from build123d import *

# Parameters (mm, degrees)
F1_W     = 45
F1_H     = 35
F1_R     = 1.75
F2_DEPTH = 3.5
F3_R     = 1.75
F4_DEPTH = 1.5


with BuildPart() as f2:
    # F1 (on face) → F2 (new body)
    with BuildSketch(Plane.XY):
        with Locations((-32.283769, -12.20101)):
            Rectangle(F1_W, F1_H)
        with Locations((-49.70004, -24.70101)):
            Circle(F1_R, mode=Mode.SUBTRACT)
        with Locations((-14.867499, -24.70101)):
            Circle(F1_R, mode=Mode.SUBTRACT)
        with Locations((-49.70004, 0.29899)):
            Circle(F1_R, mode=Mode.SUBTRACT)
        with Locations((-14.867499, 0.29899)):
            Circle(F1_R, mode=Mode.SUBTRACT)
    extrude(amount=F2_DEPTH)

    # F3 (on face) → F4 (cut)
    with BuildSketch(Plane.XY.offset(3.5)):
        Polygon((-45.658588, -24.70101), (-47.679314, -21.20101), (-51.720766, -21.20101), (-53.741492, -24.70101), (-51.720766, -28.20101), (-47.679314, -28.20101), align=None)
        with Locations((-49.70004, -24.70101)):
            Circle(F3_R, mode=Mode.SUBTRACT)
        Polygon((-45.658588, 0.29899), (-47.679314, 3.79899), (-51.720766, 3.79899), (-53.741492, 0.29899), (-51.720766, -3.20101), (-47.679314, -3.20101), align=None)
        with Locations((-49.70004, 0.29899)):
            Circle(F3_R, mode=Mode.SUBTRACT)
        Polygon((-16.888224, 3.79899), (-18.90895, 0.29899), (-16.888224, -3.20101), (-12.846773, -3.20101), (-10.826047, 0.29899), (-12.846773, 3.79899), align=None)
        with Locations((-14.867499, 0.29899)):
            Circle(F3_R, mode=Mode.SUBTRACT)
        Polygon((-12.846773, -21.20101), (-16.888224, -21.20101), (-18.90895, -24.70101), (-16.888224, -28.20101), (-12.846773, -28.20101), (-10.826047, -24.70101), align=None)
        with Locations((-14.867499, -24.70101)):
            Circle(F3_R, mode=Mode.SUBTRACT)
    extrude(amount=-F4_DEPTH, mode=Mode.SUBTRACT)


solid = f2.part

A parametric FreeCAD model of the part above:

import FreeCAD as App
import Part
import Sketcher

V = App.Vector
Q = App.Units.Quantity


def add_polygon(sketch, points):
    """Adds a closed chain of lines whose ends are joined by coincident constraints."""
    first, n = sketch.GeometryCount, len(points)
    for a, b in zip(points, points[1:] + points[:1]):
        sketch.addGeometry(Part.LineSegment(App.Vector(*a, 0), App.Vector(*b, 0)), False)
    for i in range(n):
        sketch.addConstraint(Sketcher.Constraint("Coincident", first + i, 2, first + (i + 1) % n, 1))

doc = App.newDocument("Part")
body = doc.addObject("PartDesign::Body", "Body")

sketch1 = body.newObject("Sketcher::SketchObject", "Sketch")
sketch1.AttachmentSupport = (doc.getObject("XY_Plane"), [""])
sketch1.MapMode = "FlatFace"
add_polygon(sketch1, [(-54.8, 5.3), (-54.8, -29.7), (-9.8, -29.7), (-9.8, 5.3)])
sketch1.addGeometry(Part.Circle(V(-49.7, -24.7, 0), V(0, 0, 1), 1.8), False)
sketch1.addGeometry(Part.Circle(V(-14.9, -24.7, 0), V(0, 0, 1), 1.8), False)
sketch1.addGeometry(Part.Circle(V(-49.7, 0.3, 0), V(0, 0, 1), 1.8), False)
sketch1.addGeometry(Part.Circle(V(-14.9, 0.3, 0), V(0, 0, 1), 1.8), False)
sketch1.addConstraint([
    Sketcher.Constraint("Vertical", 0),
    Sketcher.Constraint("Horizontal", 1),
    Sketcher.Constraint("Vertical", 2),
    Sketcher.Constraint("Horizontal", 3),
    Sketcher.Constraint("Equal", 4, 5),
    Sketcher.Constraint("Equal", 5, 6),
    Sketcher.Constraint("Equal", 6, 7),
    Sketcher.Constraint("Horizontal", 4, 3, 5, 3),
    Sketcher.Constraint("Horizontal", 6, 3, 7, 3),
    Sketcher.Constraint("Vertical", 4, 3, 6, 3),
    Sketcher.Constraint("Vertical", 5, 3, 7, 3),
    Sketcher.Constraint("Diameter", 4, 3.5),
    Sketcher.Constraint("DistanceX", 1, 1, 1, 2, 45.0),
    Sketcher.Constraint("DistanceY", 0, 2, 0, 1, 35.0),
    Sketcher.Constraint("DistanceY", 4, 3, 6, 3, 25.0),
    Sketcher.Constraint("DistanceY", 0, 2, 4, 3, 5.0),
    Sketcher.Constraint("DistanceX", 5, 3, -1, 1, 14.867499),
    Sketcher.Constraint("DistanceX", 4, 3, -1, 1, 49.70004),
    Sketcher.Constraint("DistanceY", 4, 3, -1, 1, 24.70101),
    Sketcher.Constraint("DistanceX", 0, 2, -1, 1, 54.783769),
])
pad1 = body.newObject("PartDesign::Pad", "Pad")
pad1.Profile = sketch1
pad1.Length = 3.5

sketch2 = body.newObject("Sketcher::SketchObject", "Sketch001")
sketch2.AttachmentSupport = (doc.getObject("XY_Plane"), [""])
sketch2.MapMode = "FlatFace"
sketch2.AttachmentOffset = App.Placement(V(0, 0, 3.5), App.Rotation())
add_polygon(sketch2, [(-45.7, -24.7), (-47.7, -21.2), (-51.7, -21.2), (-53.7, -24.7), (-51.7, -28.2), (-47.7, -28.2)])
sketch2.addGeometry(Part.Circle(V(-49.7, -24.7, 0), V(0, 0, 1), 1.8), False)
add_polygon(sketch2, [(-45.7, 0.3), (-47.7, 3.8), (-51.7, 3.8), (-53.7, 0.3), (-51.7, -3.2), (-47.7, -3.2)])
sketch2.addGeometry(Part.Circle(V(-49.7, 0.3, 0), V(0, 0, 1), 1.8), False)
add_polygon(sketch2, [(-16.9, 3.8), (-18.9, 0.3), (-16.9, -3.2), (-12.8, -3.2), (-10.8, 0.3), (-12.8, 3.8)])
sketch2.addGeometry(Part.Circle(V(-14.9, 0.3, 0), V(0, 0, 1), 1.8), False)
add_polygon(sketch2, [(-12.8, -21.2), (-16.9, -21.2), (-18.9, -24.7), (-16.9, -28.2), (-12.8, -28.2), (-10.8, -24.7)])
sketch2.addGeometry(Part.Circle(V(-14.9, -24.7, 0), V(0, 0, 1), 1.8), False)
sketch2.addConstraint([
    Sketcher.Constraint("Horizontal", 1),
    Sketcher.Constraint("Horizontal", 4),
    Sketcher.Constraint("Horizontal", 8),
    Sketcher.Constraint("Horizontal", 11),
    Sketcher.Constraint("Horizontal", 16),
    Sketcher.Constraint("Horizontal", 19),
    Sketcher.Constraint("Horizontal", 21),
    Sketcher.Constraint("Horizontal", 24),
    Sketcher.Constraint("Equal", 6, 13),
    Sketcher.Constraint("Equal", 13, 20),
    Sketcher.Constraint("Equal", 20, 27),
    Sketcher.Constraint("Parallel", 0, 3),
    Sketcher.Constraint("Parallel", 2, 5),
    Sketcher.Constraint("Parallel", 3, 7),
    Sketcher.Constraint("Parallel", 5, 9),
    Sketcher.Constraint("Parallel", 7, 10),
    Sketcher.Constraint("Parallel", 9, 12),
    Sketcher.Constraint("Parallel", 12, 14),
    Sketcher.Constraint("Parallel", 10, 15),
    Sketcher.Constraint("Parallel", 14, 17),
    Sketcher.Constraint("Parallel", 15, 18),
    Sketcher.Constraint("Parallel", 17, 22),
    Sketcher.Constraint("Parallel", 18, 23),
    Sketcher.Constraint("Parallel", 22, 25),
    Sketcher.Constraint("Parallel", 23, 26),
    Sketcher.Constraint("Horizontal", 13, 3, 20, 3),
    Sketcher.Constraint("Horizontal", 6, 3, 27, 3),
    Sketcher.Constraint("Horizontal", 27, 3, 2, 2),
    Sketcher.Constraint("Horizontal", 2, 2, 5, 2),
    Sketcher.Constraint("Horizontal", 20, 3, 9, 2),
    Sketcher.Constraint("Horizontal", 9, 2, 12, 2),
    Sketcher.Constraint("Horizontal", 12, 2, 14, 2),
    Sketcher.Constraint("Horizontal", 11, 2, 15, 2),
    Sketcher.Constraint("Horizontal", 14, 2, 17, 2),
    Sketcher.Constraint("Horizontal", 8, 2, 18, 2),
    Sketcher.Constraint("Horizontal", 1, 2, 21, 2),
    Sketcher.Constraint("Horizontal", 5, 2, 22, 2),
    Sketcher.Constraint("Horizontal", 4, 2, 23, 2),
    Sketcher.Constraint("Horizontal", 22, 2, 25, 2),
    Sketcher.Constraint("Vertical", 6, 3, 13, 3),
    Sketcher.Constraint("Vertical", 20, 3, 27, 3),
    Sketcher.Constraint("Vertical", 1, 2, 3, 2),
    Sketcher.Constraint("Vertical", 0, 2, 4, 2),
    Sketcher.Constraint("Vertical", 4, 2, 7, 2),
    Sketcher.Constraint("Vertical", 3, 2, 8, 2),
    Sketcher.Constraint("Vertical", 2, 2, 9, 2),
    Sketcher.Constraint("Vertical", 8, 2, 10, 2),
    Sketcher.Constraint("Vertical", 19, 2, 21, 2),
    Sketcher.Constraint("Vertical", 18, 2, 24, 2),
    Sketcher.Constraint("Equal", 11, 16),
    Sketcher.Constraint("Diameter", 6, 3.5),
    Sketcher.Constraint("Angle", 0, Q("120.000001 deg")),
    Sketcher.Constraint("DistanceY", 6, 3, 13, 3, 25.0),
    Sketcher.Constraint("DistanceY", 3, 2, 1, 2, 7.0),
    Sketcher.Constraint("DistanceX", 1, 2, 1, 1, 4.041452),
    Sketcher.Constraint("DistanceX", 20, 3, -1, 1, 14.867499),
    Sketcher.Constraint("DistanceX", 6, 3, -1, 1, 49.70004),
    Sketcher.Constraint("DistanceY", 6, 3, -1, 1, 24.70101),
    Sketcher.Constraint("DistanceX", 5, 2, -1, 1, 45.658588),
    Sketcher.Constraint("DistanceX", 14, 2, -1, 1, 18.90895),
])
pocket1 = body.newObject("PartDesign::Pocket", "Pocket")
pocket1.Profile = sketch2
pocket1.Length = 1.5

doc.recompute()
